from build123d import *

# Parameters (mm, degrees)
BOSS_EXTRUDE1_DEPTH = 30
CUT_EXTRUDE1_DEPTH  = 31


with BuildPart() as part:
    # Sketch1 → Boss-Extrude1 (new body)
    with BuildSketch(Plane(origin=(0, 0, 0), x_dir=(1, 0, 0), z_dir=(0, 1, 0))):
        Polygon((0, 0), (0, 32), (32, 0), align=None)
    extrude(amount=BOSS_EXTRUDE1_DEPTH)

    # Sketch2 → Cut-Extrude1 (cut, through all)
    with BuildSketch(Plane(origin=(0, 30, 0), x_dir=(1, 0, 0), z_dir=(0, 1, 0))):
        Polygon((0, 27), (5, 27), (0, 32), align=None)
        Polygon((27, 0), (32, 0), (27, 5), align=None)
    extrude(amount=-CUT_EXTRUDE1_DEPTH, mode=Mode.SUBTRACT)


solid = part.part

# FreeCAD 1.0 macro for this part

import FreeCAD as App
import Part
import Sketcher

V = App.Vector

doc = App.newDocument("Part")
body = doc.addObject("PartDesign::Body", "Body")

sketch1 = doc.addObject("Sketcher::SketchObject", "Sketch")
body.addObject(sketch1)
sketch1.AttachmentSupport = (doc.XZ_Plane, [""])
sketch1.MapMode = "FlatFace"
sketch1.addGeometry([
    Part.LineSegment(V(0, -32, 0), V(0, 0, 0)),
    Part.LineSegment(V(0, 0, 0), V(32, 0, 0)),
    Part.LineSegment(V(32, 0, 0), V(0, -32, 0)),
], False)
sketch1.addConstraint([
    Sketcher.Constraint("Coincident", 0, 2, 1, 1),
    Sketcher.Constraint("Coincident", 1, 2, 2, 1),
    Sketcher.Constraint("Coincident", 2, 2, 0, 1),
    Sketcher.Constraint("Vertical", 0),
    Sketcher.Constraint("Horizontal", 1),
    Sketcher.Constraint("Coincident", 0, 2, -1, 1),
    Sketcher.Constraint("Equal", 1, 0),
    Sketcher.Constraint("DistanceX", 1, 1, 1, 2, 32.0),
])
pad1 = doc.addObject("PartDesign::Pad", "Pad")
body.addObject(pad1)
pad1.Profile = sketch1
pad1.Length = 30
pad1.Reversed = True

sketch2 = doc.addObject("Sketcher::SketchObject", "Sketch001")
body.addObject(sketch2)
sketch2.AttachmentSupport = (doc.XZ_Plane, [""])
sketch2.MapMode = "FlatFace"
sketch2.AttachmentOffset = App.Placement(V(0, 0, -30), App.Rotation())
sketch2.addGeometry([
    Part.LineSegment(V(0, -27, 0), V(5, -27, 0)),
    Part.LineSegment(V(5, -27, 0), V(0, -32, 0)),
    Part.LineSegment(V(0, -32, 0), V(0, -27, 0)),
    Part.LineSegment(V(27, 0, 0), V(32, 0, 0)),
    Part.LineSegment(V(32, 0, 0), V(27, -5, 0)),
    Part.LineSegment(V(27, -5, 0), V(27, 0, 0)),
], False)
sketch2.addConstraint([
    Sketcher.Constraint("Coincident", 0, 2, 1, 1),
    Sketcher.Constraint("Coincident", 1, 2, 2, 1),
    Sketcher.Constraint("Coincident", 2, 2, 0, 1),
    Sketcher.Constraint("Coincident", 3, 2, 4, 1),
    Sketcher.Constraint("Coincident", 4, 2, 5, 1),
    Sketcher.Constraint("Coincident", 5, 2, 3, 1),
    Sketcher.Constraint("Horizontal", 0),
    Sketcher.Constraint("Vertical", 2),
    Sketcher.Constraint("Horizontal", 3),
    Sketcher.Constraint("Vertical", 5),
    Sketcher.Constraint("PointOnObject", 1, 2, -2),
    Sketcher.Constraint("PointOnObject", 3, 2, -1),
    Sketcher.Constraint("Parallel", 1, 4),
    Sketcher.Constraint("Equal", 0, 3),
    Sketcher.Constraint("Equal", 3, 2),
    Sketcher.Constraint("DistanceX", 0, 1, 0, 2, 5.0),
    Sketcher.Constraint("DistanceY", 0, 2, -1, 1, 27.0),
    Sketcher.Constraint("DistanceX", -1, 1, 3, 2, 32.0),
])
pocket1 = doc.addObject("PartDesign::Pocket", "Pocket")
body.addObject(pocket1)
pocket1.Profile = sketch2
pocket1.Type = "ThroughAll"
pocket1.Reversed = True

doc.recompute()
